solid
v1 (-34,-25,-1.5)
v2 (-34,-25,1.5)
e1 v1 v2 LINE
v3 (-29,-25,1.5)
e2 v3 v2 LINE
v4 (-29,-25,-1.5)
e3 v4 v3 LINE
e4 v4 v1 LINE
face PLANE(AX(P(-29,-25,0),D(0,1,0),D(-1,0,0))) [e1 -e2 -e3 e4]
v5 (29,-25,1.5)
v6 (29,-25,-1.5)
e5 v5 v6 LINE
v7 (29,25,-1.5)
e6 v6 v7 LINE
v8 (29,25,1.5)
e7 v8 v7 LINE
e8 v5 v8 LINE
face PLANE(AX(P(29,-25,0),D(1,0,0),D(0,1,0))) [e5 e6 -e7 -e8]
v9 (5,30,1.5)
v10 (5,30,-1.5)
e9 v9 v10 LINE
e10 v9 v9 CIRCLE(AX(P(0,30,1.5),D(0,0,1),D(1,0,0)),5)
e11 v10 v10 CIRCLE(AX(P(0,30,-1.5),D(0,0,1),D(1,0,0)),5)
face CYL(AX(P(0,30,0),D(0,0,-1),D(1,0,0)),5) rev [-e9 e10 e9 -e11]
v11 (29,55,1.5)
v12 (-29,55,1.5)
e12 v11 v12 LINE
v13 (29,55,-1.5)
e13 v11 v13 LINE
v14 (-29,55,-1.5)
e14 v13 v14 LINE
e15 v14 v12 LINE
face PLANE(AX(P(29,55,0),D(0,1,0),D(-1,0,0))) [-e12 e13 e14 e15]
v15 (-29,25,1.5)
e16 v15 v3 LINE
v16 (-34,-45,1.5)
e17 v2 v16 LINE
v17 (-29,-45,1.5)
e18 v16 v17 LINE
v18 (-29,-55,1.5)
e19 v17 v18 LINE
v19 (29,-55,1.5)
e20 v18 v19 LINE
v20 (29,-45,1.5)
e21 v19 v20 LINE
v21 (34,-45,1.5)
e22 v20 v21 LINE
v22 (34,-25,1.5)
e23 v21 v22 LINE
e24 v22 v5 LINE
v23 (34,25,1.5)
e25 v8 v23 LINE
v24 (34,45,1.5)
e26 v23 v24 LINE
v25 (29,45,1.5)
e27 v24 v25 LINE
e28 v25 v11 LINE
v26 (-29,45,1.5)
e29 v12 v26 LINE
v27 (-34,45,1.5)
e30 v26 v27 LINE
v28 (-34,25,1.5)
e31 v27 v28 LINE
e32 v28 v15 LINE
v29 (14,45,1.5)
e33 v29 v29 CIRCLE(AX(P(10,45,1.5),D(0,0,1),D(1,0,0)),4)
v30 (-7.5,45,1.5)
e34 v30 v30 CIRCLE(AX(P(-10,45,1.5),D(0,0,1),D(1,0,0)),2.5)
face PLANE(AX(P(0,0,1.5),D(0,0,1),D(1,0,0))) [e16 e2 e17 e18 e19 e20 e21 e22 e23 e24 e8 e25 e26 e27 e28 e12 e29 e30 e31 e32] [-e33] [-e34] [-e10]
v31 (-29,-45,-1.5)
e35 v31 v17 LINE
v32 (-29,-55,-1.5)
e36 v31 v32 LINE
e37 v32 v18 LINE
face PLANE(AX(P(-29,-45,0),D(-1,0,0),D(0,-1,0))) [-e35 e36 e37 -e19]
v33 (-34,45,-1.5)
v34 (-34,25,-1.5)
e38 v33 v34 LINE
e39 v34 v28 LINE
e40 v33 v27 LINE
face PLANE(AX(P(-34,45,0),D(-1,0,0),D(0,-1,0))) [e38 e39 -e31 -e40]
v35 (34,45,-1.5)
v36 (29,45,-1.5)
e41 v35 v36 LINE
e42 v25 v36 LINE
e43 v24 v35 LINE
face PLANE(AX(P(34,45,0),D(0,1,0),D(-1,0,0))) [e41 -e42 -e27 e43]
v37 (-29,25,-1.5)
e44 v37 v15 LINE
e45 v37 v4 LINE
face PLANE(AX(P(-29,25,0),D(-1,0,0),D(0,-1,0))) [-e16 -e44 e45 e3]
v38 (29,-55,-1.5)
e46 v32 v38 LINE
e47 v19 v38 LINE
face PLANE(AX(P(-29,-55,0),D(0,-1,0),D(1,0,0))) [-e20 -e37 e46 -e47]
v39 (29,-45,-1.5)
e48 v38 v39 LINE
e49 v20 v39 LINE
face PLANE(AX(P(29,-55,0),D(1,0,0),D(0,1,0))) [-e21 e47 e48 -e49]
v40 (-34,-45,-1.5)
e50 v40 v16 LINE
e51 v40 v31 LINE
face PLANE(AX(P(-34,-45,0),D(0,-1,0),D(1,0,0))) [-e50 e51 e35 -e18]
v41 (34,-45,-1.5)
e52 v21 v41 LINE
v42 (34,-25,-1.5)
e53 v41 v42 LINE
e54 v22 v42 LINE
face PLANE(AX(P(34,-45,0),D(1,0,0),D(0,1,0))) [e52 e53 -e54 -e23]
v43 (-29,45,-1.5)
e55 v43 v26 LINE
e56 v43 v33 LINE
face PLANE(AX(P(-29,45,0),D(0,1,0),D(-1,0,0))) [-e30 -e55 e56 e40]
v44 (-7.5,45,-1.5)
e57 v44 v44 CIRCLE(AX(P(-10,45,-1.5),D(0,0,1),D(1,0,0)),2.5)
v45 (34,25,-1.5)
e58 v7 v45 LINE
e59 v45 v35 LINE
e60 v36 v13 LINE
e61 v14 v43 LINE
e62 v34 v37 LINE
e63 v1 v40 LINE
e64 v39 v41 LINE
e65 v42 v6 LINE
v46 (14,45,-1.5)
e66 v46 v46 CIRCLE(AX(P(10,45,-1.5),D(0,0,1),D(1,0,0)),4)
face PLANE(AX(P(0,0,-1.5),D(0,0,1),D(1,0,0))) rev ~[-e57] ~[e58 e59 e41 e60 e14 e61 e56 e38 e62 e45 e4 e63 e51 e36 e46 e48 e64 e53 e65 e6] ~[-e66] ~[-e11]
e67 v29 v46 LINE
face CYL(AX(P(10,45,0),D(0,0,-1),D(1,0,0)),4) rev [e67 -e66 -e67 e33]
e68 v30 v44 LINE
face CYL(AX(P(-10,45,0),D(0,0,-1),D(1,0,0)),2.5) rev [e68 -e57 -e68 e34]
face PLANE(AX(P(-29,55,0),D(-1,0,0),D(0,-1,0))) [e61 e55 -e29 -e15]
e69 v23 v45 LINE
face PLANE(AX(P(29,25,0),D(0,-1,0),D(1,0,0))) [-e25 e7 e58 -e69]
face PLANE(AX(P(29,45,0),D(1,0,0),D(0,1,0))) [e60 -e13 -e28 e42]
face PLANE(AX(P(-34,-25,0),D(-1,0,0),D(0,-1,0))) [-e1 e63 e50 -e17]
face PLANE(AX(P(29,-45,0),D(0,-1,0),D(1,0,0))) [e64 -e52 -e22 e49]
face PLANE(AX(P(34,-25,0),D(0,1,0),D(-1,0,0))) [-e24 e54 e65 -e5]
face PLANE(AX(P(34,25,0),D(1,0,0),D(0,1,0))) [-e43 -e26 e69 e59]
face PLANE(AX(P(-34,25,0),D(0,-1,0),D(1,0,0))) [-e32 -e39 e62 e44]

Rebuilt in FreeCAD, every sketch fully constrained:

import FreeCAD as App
import Part
import Sketcher
from FreeCAD import Vector
Q = App.Units.Quantity


def add_polygon(sketch, points):
    """Adds a closed chain of lines whose ends are joined by coincident constraints."""
    first, n = sketch.GeometryCount, len(points)
    for a, b in zip(points, points[1:] + points[:1]):
        sketch.addGeometry(Part.LineSegment(App.Vector(*a, 0), App.Vector(*b, 0)), False)
    for i in range(n):
        sketch.addConstraint(Sketcher.Constraint("Coincident", first + i, 2, first + (i + 1) % n, 1))

doc = App.newDocument("Part")
body = doc.addObject("PartDesign::Body", "Body")

sketch1 = body.newObject("Sketcher::SketchObject", "Sketch")
sketch1.AttachmentSupport = (doc.getObject("XY_Plane"), [""])
sketch1.MapMode = "FlatFace"
add_polygon(sketch1, [(29, 55), (-29, 55), (-29, 45), (-34, 45), (-34, 25), (-29, 25), (-29, -25), (-34, -25), (-34, -45), (-29, -45), (-29, -55), (29, -55), (29, -45), (34, -45), (34, -25), (29, -25), (29, 25), (34, 25), (34, 45), (29, 45)])
sketch1.addGeometry(Part.Circle(Vector(0, 30, 0), Vector(0, 0, 1), 5), False)
sketch1.addGeometry(Part.Circle(Vector(-10, 45, 0), Vector(0, 0, 1), 2.5), False)
sketch1.addGeometry(Part.Circle(Vector(10, 45, 0), Vector(0, 0, 1), 4), False)
sketch1.addConstraint(Sketcher.Constraint("Horizontal", 0))
sketch1.addConstraint(Sketcher.Constraint("Vertical", 1))
sketch1.addConstraint(Sketcher.Constraint("Horizontal", 2))
sketch1.addConstraint(Sketcher.Constraint("Vertical", 3))
sketch1.addConstraint(Sketcher.Constraint("Horizontal", 4))
sketch1.addConstraint(Sketcher.Constraint("Vertical", 5))
sketch1.addConstraint(Sketcher.Constraint("Horizontal", 6))
sketch1.addConstraint(Sketcher.Constraint("Vertical", 7))
sketch1.addConstraint(Sketcher.Constraint("Horizontal", 8))
sketch1.addConstraint(Sketcher.Constraint("Vertical", 9))
sketch1.addConstraint(Sketcher.Constraint("Horizontal", 10))
sketch1.addConstraint(Sketcher.Constraint("Vertical", 11))
sketch1.addConstraint(Sketcher.Constraint("Horizontal", 12))
sketch1.addConstraint(Sketcher.Constraint("Vertical", 13))
sketch1.addConstraint(Sketcher.Constraint("Horizontal", 14))
sketch1.addConstraint(Sketcher.Constraint("Vertical", 15))
sketch1.addConstraint(Sketcher.Constraint("Horizontal", 16))
sketch1.addConstraint(Sketcher.Constraint("Vertical", 17))
sketch1.addConstraint(Sketcher.Constraint("Horizontal", 18))
sketch1.addConstraint(Sketcher.Constraint("Vertical", 19))
sketch1.addConstraint(Sketcher.Constraint("Symmetric", 0, 2, 10, 2, -1, 1))
sketch1.addConstraint(Sketcher.Constraint("Symmetric", 2, 2, 12, 2, -1, 1))
sketch1.addConstraint(Sketcher.Constraint("Symmetric", 4, 2, 14, 2, -1, 1))
sketch1.addConstraint(Sketcher.Constraint("Symmetric", 6, 2, 16, 2, -1, 1))
sketch1.addConstraint(Sketcher.Constraint("Symmetric", 8, 2, 18, 2, -1, 1))
sketch1.addConstraint(Sketcher.Constraint("Symmetric", 21, 3, 22, 3, -2))
sketch1.addConstraint(Sketcher.Constraint("Symmetric", 8, 2, 11, 2, -2))
sketch1.addConstraint(Sketcher.Constraint("Symmetric", 6, 2, 13, 2, -2))
sketch1.addConstraint(Sketcher.Constraint("PointOnObject", 20, 3, -2))
sketch1.addConstraint(Sketcher.Constraint("Horizontal", 22, 3, 1, 2))
sketch1.addConstraint(Sketcher.Constraint("Vertical", 1, 2, 4, 2))
sketch1.addConstraint(Sketcher.Constraint("Diameter", 20, Q("10 mm")))
sketch1.addConstraint(Sketcher.Constraint("Diameter", 21, Q("5 mm")))
sketch1.addConstraint(Sketcher.Constraint("Diameter", 22, Q("8 mm")))
sketch1.addConstraint(Sketcher.Constraint("DistanceX", 0, 2, 0, 1, Q("58 mm")))
sketch1.addConstraint(Sketcher.Constraint("DistanceX", 2, 2, 2, 1, Q("5 mm")))
sketch1.addConstraint(Sketcher.Constraint("DistanceY", 1, 2, 1, 1, Q("10 mm")))
sketch1.addConstraint(Sketcher.Constraint("DistanceY", 3, 2, 3, 1, Q("20 mm")))
sketch1.addConstraint(Sketcher.Constraint("DistanceY", 5, 2, 5, 1, Q("50 mm")))
sketch1.addConstraint(Sketcher.Constraint("DistanceY", -1, 1, 20, 3, Q("30 mm")))
sketch1.addConstraint(Sketcher.Constraint("DistanceX", 21, 3, -1, 1, Q("10 mm")))
pad1 = body.newObject("PartDesign::Pad", "Pad")
pad1.Profile = sketch1
pad1.Length = 3
pad1.Midplane = True

doc.recompute()
